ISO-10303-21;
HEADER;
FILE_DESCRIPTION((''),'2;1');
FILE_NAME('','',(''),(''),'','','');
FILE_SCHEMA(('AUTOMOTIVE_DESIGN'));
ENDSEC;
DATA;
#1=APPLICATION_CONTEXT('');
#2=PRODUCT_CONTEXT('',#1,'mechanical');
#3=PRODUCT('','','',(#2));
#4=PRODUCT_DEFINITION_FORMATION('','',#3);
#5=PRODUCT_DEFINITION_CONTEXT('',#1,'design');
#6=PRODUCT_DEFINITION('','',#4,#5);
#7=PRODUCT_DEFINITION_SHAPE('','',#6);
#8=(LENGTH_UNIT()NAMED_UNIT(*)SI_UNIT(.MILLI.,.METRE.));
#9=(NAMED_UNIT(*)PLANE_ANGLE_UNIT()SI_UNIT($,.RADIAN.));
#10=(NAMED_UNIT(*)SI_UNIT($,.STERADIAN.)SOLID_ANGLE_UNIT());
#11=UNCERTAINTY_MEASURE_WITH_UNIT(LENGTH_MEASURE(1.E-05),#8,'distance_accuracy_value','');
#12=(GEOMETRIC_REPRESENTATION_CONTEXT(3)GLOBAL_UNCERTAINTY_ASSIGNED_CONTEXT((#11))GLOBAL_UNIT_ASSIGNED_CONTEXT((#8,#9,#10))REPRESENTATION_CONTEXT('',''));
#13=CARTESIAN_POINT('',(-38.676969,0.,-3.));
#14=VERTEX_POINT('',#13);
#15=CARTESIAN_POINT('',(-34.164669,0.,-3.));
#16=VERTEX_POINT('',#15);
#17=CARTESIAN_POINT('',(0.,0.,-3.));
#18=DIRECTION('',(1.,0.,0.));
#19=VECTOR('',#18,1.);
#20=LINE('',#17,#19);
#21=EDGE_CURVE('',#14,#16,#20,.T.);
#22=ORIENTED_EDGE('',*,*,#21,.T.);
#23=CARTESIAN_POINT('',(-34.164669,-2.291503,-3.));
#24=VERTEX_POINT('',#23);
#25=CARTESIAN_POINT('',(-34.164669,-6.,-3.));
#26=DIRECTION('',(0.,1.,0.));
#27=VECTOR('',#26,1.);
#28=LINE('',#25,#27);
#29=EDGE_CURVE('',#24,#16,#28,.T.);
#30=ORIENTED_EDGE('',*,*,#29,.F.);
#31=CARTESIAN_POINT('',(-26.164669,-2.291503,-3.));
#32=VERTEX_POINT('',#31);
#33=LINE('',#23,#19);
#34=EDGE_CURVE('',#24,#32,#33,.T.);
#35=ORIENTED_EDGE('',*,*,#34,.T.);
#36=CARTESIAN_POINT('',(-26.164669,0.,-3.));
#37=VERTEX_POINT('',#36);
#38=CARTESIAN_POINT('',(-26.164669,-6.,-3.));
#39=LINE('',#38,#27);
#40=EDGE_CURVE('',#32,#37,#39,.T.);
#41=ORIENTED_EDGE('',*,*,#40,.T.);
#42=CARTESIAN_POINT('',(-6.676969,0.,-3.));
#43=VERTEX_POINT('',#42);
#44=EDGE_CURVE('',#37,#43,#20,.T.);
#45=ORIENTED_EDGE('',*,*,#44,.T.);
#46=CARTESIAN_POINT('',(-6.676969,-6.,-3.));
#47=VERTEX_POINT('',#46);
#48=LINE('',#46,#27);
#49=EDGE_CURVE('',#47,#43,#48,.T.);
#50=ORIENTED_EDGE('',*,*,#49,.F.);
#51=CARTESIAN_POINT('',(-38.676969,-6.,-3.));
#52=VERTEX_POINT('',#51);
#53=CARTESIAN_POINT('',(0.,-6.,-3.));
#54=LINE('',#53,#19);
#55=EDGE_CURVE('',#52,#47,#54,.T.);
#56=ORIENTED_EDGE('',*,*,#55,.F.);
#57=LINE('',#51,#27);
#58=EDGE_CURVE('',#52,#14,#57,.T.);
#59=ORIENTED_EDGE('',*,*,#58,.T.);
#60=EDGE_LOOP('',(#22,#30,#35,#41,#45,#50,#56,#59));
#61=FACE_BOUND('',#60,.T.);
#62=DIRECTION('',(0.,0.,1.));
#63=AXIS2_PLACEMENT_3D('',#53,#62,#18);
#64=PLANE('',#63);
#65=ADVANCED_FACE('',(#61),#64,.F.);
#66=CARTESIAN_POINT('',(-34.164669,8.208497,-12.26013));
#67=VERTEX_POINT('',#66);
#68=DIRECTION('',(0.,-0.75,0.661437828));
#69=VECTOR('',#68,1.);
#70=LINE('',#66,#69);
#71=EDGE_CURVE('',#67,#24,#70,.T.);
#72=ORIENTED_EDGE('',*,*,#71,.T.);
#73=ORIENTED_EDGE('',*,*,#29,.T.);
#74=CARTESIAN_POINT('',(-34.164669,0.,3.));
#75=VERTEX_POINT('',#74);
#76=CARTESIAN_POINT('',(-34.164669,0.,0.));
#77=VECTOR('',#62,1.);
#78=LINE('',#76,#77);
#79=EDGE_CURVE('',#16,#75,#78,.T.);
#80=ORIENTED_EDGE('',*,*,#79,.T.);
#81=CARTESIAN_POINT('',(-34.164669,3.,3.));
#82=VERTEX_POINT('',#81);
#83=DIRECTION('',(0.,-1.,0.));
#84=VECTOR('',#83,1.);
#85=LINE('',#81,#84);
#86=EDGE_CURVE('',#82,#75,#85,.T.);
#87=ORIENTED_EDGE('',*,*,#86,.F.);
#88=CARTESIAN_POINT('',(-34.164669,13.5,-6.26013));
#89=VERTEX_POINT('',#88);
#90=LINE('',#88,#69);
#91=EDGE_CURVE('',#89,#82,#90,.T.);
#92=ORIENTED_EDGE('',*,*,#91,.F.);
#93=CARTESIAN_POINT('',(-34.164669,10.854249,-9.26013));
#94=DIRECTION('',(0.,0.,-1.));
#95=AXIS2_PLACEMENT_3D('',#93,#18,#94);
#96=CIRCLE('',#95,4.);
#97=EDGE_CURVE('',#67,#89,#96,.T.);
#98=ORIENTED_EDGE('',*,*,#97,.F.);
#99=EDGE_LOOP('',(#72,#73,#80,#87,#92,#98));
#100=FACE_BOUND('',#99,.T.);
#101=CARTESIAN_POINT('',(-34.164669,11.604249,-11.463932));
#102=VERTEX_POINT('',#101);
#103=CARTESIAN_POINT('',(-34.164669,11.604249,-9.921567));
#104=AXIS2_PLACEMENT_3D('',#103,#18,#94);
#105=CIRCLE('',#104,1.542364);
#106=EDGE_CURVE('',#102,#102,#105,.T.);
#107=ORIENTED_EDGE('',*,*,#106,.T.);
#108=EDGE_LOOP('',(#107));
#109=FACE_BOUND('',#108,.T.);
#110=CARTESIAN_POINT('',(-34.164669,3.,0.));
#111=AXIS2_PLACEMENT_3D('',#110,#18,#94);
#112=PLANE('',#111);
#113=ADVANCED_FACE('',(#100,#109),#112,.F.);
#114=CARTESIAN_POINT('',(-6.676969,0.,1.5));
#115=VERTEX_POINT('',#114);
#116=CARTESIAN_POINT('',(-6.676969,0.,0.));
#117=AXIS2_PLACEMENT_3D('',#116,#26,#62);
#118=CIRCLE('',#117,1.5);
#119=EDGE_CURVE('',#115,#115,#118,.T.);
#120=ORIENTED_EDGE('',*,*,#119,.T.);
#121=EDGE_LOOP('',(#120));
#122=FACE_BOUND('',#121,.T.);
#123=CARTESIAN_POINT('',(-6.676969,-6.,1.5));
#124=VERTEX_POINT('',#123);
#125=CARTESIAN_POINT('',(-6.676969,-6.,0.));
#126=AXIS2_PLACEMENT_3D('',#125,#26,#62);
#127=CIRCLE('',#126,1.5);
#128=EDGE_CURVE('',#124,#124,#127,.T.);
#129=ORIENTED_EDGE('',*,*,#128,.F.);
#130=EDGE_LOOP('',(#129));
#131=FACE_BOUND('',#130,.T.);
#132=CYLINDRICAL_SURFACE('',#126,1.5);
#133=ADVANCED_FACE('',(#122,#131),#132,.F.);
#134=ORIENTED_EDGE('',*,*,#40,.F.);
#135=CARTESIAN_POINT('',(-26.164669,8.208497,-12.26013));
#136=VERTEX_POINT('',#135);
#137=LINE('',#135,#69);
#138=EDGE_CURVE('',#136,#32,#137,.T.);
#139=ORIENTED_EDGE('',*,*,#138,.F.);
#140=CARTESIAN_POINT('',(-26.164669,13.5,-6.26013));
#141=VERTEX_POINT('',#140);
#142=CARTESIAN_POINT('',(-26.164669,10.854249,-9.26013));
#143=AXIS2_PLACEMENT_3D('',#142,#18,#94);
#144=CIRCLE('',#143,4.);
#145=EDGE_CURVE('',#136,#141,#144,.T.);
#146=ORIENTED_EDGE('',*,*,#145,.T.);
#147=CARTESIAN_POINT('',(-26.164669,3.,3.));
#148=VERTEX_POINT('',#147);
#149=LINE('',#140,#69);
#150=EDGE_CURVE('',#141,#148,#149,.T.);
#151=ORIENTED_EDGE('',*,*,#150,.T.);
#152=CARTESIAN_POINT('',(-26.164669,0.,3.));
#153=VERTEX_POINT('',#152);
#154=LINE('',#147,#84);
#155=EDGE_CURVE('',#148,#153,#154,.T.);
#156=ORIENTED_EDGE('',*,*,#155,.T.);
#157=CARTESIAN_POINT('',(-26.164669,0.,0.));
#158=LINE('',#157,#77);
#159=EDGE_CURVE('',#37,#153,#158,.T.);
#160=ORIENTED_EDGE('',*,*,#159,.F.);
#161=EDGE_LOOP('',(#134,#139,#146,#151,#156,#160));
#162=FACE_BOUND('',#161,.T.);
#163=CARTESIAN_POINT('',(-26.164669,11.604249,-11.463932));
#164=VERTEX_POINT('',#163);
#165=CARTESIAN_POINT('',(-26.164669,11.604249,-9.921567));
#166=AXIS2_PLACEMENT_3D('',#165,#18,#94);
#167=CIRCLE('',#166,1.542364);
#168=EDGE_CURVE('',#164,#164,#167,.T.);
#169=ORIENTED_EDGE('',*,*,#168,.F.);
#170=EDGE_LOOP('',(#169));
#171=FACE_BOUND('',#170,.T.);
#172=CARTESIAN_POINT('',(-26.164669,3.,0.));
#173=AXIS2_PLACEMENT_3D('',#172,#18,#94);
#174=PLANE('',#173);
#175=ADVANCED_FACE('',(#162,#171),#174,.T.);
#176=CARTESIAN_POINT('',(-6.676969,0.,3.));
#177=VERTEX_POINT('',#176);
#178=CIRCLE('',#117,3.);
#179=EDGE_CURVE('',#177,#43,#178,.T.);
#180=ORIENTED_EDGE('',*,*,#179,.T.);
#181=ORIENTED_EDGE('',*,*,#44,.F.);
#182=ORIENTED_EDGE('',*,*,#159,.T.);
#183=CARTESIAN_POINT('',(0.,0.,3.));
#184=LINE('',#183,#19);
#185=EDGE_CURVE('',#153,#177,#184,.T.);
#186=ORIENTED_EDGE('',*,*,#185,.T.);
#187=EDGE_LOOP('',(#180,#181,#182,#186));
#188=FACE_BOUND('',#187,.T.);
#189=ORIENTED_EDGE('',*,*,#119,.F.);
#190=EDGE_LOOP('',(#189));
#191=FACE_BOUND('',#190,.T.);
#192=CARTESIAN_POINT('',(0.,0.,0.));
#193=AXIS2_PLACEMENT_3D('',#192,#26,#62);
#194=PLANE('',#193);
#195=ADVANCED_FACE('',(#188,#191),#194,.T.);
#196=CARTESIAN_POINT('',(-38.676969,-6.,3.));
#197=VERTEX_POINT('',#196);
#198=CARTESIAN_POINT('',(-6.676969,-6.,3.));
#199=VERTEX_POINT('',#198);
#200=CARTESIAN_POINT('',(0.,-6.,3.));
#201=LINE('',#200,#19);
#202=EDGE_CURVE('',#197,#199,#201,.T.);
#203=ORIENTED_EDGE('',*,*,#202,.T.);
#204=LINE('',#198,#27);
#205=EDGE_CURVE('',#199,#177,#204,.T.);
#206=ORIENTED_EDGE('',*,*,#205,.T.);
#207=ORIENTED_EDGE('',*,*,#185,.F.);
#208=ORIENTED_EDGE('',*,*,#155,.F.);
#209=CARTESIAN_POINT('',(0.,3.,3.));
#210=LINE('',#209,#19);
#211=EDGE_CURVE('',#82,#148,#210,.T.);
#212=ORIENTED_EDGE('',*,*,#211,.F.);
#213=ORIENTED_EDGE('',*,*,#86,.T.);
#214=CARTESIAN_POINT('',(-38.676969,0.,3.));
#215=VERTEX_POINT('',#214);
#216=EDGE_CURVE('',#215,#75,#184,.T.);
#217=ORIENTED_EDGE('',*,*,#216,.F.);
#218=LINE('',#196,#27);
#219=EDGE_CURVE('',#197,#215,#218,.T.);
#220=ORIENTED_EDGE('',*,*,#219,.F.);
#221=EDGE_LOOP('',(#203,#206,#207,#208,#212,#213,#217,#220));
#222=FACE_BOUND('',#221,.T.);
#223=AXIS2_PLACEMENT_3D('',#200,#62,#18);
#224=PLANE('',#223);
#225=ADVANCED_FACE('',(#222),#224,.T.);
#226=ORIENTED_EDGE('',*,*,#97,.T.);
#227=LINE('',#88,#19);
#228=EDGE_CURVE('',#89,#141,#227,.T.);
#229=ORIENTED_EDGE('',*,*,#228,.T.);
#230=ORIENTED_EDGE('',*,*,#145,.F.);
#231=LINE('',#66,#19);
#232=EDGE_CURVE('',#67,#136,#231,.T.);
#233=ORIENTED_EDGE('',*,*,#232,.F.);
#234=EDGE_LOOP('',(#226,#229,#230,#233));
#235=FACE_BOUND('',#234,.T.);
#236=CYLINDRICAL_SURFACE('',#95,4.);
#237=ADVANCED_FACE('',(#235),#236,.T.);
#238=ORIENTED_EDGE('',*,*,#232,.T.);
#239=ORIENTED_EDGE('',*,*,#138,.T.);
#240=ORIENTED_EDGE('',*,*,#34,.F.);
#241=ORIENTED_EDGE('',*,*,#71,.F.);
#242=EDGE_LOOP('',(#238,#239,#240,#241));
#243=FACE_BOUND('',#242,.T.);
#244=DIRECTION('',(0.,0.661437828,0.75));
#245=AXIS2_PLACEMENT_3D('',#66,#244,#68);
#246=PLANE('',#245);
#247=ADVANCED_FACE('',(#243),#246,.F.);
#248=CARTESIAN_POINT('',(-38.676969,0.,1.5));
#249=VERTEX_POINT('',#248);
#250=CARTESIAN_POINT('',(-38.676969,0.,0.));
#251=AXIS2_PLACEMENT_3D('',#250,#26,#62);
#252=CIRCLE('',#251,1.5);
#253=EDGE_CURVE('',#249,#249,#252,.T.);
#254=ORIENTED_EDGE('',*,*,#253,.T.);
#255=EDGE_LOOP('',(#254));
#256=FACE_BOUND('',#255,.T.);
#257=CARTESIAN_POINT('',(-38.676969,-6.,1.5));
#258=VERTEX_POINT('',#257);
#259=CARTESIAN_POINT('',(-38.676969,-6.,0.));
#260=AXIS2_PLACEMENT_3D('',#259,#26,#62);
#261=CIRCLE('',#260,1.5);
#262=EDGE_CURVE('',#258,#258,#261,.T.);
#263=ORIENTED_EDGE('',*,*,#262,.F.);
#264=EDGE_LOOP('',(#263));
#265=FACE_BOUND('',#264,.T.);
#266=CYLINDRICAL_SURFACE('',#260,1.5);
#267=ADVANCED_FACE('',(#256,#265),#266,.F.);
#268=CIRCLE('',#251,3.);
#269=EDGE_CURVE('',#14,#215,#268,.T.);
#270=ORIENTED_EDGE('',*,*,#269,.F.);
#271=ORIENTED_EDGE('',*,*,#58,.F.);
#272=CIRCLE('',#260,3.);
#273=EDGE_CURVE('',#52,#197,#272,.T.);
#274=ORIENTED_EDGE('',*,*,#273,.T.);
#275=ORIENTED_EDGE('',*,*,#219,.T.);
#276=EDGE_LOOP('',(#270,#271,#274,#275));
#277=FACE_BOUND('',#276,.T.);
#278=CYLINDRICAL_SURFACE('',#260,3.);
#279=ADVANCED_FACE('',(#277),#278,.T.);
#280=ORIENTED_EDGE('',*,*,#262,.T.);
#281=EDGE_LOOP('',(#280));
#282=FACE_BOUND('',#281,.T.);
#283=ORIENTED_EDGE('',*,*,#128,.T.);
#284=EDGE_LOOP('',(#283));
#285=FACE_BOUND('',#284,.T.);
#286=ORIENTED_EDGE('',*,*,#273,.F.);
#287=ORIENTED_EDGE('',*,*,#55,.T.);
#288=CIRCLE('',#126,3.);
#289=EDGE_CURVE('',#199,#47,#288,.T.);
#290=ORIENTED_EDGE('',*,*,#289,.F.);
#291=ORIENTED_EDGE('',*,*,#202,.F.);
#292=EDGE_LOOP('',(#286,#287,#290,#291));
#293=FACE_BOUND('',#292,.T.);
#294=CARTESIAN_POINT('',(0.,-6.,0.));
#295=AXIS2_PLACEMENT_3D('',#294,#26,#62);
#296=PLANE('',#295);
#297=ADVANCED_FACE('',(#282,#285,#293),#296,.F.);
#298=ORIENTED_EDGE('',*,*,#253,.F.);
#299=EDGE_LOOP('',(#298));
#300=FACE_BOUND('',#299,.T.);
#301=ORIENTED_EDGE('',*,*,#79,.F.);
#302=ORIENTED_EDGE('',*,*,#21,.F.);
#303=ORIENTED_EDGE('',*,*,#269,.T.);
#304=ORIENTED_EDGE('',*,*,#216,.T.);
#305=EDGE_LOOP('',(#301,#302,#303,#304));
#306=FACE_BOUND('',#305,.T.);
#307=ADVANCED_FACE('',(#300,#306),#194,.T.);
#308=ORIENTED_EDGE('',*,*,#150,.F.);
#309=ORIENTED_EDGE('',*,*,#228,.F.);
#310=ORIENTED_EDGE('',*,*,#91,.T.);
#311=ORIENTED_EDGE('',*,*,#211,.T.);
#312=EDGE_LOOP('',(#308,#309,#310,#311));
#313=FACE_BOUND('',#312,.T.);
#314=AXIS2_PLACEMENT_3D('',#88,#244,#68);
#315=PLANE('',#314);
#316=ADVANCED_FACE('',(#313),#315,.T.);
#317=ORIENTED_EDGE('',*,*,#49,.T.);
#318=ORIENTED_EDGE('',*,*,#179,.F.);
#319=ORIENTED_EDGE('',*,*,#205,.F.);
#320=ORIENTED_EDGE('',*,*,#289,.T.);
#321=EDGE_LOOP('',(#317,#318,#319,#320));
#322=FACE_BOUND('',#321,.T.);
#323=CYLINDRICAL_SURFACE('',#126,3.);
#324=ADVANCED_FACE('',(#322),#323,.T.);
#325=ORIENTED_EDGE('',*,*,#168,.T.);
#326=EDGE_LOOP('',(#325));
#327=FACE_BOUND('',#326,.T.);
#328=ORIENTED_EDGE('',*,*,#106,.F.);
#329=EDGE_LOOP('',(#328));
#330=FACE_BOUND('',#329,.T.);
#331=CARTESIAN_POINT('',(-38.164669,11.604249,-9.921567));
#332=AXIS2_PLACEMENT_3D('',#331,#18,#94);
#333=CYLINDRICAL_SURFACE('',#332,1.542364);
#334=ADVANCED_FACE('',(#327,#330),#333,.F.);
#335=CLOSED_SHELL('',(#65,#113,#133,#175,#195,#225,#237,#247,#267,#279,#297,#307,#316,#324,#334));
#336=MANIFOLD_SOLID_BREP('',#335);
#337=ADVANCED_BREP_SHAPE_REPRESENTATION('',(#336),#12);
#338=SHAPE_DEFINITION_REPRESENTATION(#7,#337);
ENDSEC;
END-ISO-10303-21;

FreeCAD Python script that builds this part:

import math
import FreeCAD as App
import Part
import Sketcher
from FreeCAD import Vector
Q = App.Units.Quantity

doc = App.newDocument("Part")
body = doc.addObject("PartDesign::Body", "Body")

sketch1 = body.newObject("Sketcher::SketchObject", "Sketch")
sketch1.AttachmentSupport = (doc.getObject("XZ_Plane"), [""])
sketch1.MapMode = "FlatFace"
sketch1.addGeometry([
    Part.ArcOfCircle(Part.Circle(Vector(-38.7, 0, 0), Vector(0, 0, 1), 3), math.radians(90), math.radians(270)),
    Part.LineSegment(Vector(-38.7, 3, 0), Vector(-6.7, 3, 0)),
    Part.ArcOfCircle(Part.Circle(Vector(-6.7, 0, 0), Vector(0, 0, 1), 3), math.radians(-90), math.radians(90)),
    Part.LineSegment(Vector(-6.7, -3, 0), Vector(-38.7, -3, 0)),
    Part.Circle(Vector(-38.7, 0, 0), Vector(0, 0, 1), 1.5),
    Part.Circle(Vector(-6.7, 0, 0), Vector(0, 0, 1), 1.5),
], False)
sketch1.addConstraint([
    Sketcher.Constraint("Tangent", 0, 1, 1, 1),
    Sketcher.Constraint("Tangent", 1, 2, 2, 2),
    Sketcher.Constraint("Tangent", 2, 1, 3, 1),
    Sketcher.Constraint("Tangent", 3, 2, 0, 2),
    Sketcher.Constraint("Horizontal", 1),
    Sketcher.Constraint("Horizontal", 3),
    Sketcher.Constraint("Coincident", 4, 3, 0, 3),
    Sketcher.Constraint("Coincident", 5, 3, 2, 3),
    Sketcher.Constraint("Equal", 4, 5),
    Sketcher.Constraint("PointOnObject", 0, 3, -1),
    Sketcher.Constraint("Diameter", 4, Q("3 mm")),
    Sketcher.Constraint("Radius", 0, Q("3 mm")),
    Sketcher.Constraint("DistanceX", 1, 1, 1, 2, Q("32 mm")),
    Sketcher.Constraint("DistanceX", 0, 3, -1, 1, Q("38.676969 mm")),
])
pad1 = body.newObject("PartDesign::Pad", "Pad")
pad1.Profile = sketch1
pad1.Length = 6

sketch2 = body.newObject("Sketcher::SketchObject", "Sketch001")
sketch2.AttachmentSupport = (doc.getObject("XZ_Plane"), [""])
sketch2.MapMode = "FlatFace"
sketch2.addGeometry([
    Part.LineSegment(Vector(-34, 3, 0), Vector(-26, 3, 0)),
    Part.LineSegment(Vector(-26, 3, 0), Vector(-26, -3, 0)),
    Part.LineSegment(Vector(-26, -3, 0), Vector(-34, -3, 0)),
    Part.LineSegment(Vector(-34, -3, 0), Vector(-34, 3, 0)),
], False)
sketch2.addConstraint([
    Sketcher.Constraint("Coincident", 0, 2, 1, 1),
    Sketcher.Constraint("Coincident", 1, 2, 2, 1),
    Sketcher.Constraint("Coincident", 2, 2, 3, 1),
    Sketcher.Constraint("Coincident", 3, 2, 0, 1),
    Sketcher.Constraint("Horizontal", 0),
    Sketcher.Constraint("Vertical", 1),
    Sketcher.Constraint("Horizontal", 2),
    Sketcher.Constraint("Vertical", 3),
    Sketcher.Constraint("DistanceX", 0, 1, 0, 2, Q("8 mm")),
    Sketcher.Constraint("DistanceY", 1, 2, 1, 1, Q("6 mm")),
    Sketcher.Constraint("DistanceY", -1, 1, 0, 2, Q("3 mm")),
    Sketcher.Constraint("DistanceX", 0, 2, -1, 1, Q("26.164669 mm")),
])
pad2 = body.newObject("PartDesign::Pad", "Pad001")
pad2.Profile = sketch2
pad2.Length = 3
pad2.Reversed = True

sketch3 = body.newObject("Sketcher::SketchObject", "Sketch002")
sketch3.AttachmentSupport = (doc.getObject("YZ_Plane"), [""])
sketch3.MapMode = "FlatFace"
sketch3.AttachmentOffset = App.Placement(Vector(0, 0, -26.164669), App.Rotation())
sketch3.addGeometry([
    Part.LineSegment(Vector(-2.3, -3, 0), Vector(8.2, -12.3, 0)),
    Part.ArcOfCircle(Part.Circle(Vector(10.9, -9.3, 0), Vector(0, 0, 1), 4), math.radians(-131), math.radians(49)),
    Part.LineSegment(Vector(13.5, -6.3, 0), Vector(3, 3, 0)),
    Part.LineSegment(Vector(3, 3, 0), Vector(-2.3, -3, 0)),
], False)
sketch3.addConstraint([
    Sketcher.Constraint("Tangent", 0, 2, 1, 1),
    Sketcher.Constraint("Tangent", 1, 2, 2, 1),
    Sketcher.Constraint("Coincident", 2, 2, 3, 1),
    Sketcher.Constraint("Coincident", 3, 2, 0, 1),
    Sketcher.Constraint("Parallel", 0, 2),
    Sketcher.Constraint("Perpendicular", 2, 3),
    Sketcher.Constraint("Radius", 1, Q("4 mm")),
    Sketcher.Constraint("Distance", 0, Q("14 mm")),
    Sketcher.Constraint("DistanceX", -1, 1, 2, 2, Q("3 mm")),
    Sketcher.Constraint("DistanceY", -1, 1, 2, 2, Q("3 mm")),
    Sketcher.Constraint("DistanceY", 3, 2, -1, 1, Q("3 mm")),
])
pad3 = body.newObject("PartDesign::Pad", "Pad002")
pad3.Profile = sketch3
pad3.Length = 8
pad3.Reversed = True

sketch4 = body.newObject("Sketcher::SketchObject", "Sketch003")
sketch4.AttachmentSupport = (doc.getObject("YZ_Plane"), [""])
sketch4.MapMode = "FlatFace"
sketch4.AttachmentOffset = App.Placement(Vector(0, 0, -26.164669), App.Rotation())
sketch4.addGeometry(Part.Circle(Vector(11.6, -9.9, 0), Vector(0, 0, 1), 1.5), False)
sketch4.addConstraint([
    Sketcher.Constraint("Diameter", 0, Q("3.084729 mm")),
    Sketcher.Constraint("DistanceX", -1, 1, 0, 3, Q("11.604249 mm")),
    Sketcher.Constraint("DistanceY", 0, 3, -1, 1, Q("9.921567 mm")),
])
pocket1 = body.newObject("PartDesign::Pocket", "Pocket")
pocket1.Profile = sketch4
pocket1.Length = 12

doc.recompute()
